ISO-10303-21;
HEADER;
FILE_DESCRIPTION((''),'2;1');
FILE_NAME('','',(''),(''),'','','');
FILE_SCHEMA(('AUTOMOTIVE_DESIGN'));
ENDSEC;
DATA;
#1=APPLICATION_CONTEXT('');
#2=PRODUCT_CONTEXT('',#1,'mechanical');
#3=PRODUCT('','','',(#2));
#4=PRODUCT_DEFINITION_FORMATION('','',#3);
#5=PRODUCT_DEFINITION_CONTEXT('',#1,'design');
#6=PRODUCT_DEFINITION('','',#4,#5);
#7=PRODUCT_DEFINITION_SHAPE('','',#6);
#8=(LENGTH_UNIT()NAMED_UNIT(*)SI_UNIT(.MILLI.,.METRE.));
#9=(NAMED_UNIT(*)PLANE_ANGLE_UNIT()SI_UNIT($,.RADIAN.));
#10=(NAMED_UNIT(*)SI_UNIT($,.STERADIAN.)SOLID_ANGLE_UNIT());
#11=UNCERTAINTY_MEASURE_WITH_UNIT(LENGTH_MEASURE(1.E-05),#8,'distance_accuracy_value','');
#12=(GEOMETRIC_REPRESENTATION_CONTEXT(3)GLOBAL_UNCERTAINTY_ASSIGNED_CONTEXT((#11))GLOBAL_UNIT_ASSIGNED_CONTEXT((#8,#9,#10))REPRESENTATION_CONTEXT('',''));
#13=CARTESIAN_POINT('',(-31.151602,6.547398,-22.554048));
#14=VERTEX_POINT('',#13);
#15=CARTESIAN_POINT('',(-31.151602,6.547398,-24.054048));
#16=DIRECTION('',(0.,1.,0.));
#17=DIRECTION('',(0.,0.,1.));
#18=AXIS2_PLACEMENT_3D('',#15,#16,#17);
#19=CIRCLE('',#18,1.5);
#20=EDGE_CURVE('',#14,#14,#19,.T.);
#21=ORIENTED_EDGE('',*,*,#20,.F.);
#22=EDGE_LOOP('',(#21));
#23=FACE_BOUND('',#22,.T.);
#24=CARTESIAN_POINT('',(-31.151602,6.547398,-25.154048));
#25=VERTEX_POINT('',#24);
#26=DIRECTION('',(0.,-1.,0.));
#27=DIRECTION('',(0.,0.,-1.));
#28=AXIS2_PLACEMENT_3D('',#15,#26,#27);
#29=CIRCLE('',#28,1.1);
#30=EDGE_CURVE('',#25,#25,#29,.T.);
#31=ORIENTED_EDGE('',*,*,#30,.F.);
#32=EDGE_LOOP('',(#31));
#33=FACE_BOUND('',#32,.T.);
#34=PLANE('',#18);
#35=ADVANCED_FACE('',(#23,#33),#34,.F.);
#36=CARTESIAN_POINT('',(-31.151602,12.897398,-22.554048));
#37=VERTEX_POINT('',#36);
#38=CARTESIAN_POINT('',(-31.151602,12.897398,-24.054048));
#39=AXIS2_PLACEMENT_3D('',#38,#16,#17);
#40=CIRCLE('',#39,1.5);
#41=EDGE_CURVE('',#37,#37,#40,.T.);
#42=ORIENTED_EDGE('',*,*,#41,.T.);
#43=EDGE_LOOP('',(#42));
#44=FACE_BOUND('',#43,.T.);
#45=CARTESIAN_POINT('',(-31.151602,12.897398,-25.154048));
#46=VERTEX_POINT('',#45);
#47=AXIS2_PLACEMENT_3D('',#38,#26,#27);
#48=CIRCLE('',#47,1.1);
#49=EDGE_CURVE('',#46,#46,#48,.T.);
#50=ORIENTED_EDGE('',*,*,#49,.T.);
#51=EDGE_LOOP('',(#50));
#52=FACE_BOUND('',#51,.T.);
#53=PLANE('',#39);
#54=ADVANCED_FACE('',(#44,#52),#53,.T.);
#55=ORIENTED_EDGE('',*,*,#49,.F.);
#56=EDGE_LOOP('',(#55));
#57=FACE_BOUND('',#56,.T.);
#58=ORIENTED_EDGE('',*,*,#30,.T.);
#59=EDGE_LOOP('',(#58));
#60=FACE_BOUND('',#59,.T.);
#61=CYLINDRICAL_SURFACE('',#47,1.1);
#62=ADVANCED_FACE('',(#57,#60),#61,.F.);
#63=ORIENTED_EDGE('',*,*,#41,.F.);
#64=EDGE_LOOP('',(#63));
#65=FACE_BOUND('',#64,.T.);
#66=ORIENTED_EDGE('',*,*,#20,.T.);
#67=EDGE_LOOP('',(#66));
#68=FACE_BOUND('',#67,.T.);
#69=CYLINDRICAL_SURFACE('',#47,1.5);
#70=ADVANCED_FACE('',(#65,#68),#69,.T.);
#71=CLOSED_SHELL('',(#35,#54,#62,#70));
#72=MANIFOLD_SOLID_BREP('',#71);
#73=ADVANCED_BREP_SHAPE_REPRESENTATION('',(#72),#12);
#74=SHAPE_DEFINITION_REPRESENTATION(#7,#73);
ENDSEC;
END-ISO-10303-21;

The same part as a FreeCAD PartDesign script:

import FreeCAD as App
import Part
import Sketcher
from FreeCAD import Vector
Q = App.Units.Quantity

doc = App.newDocument("Part")
params = doc.addObject("Spreadsheet::Sheet", "Params")
for row, (alias, value) in enumerate([
    ("sketch1_diameter", "3 mm"),
    ("pad1_length", "6.35 mm"),
    ("sketch2_diameter", "2.2 mm"),
    ("pocket1_length", "6.35 mm"),
], start=1):
    params.set(f"A{row}", alias)
    params.set(f"B{row}", "=" + value)
    params.setAlias(f"B{row}", alias)

body = doc.addObject("PartDesign::Body", "Body")

sketch1 = body.newObject("Sketcher::SketchObject", "Sketch")
sketch1.AttachmentSupport = (doc.getObject("XZ_Plane"), [""])
sketch1.MapMode = "FlatFace"
sketch1.AttachmentOffset = App.Placement(Vector(0, 0, -6.547398), App.Rotation())
sketch1.addGeometry(Part.Circle(Vector(-31.2, -24.1, 0), Vector(0, 0, 1), 1.5), False)
sketch1.addConstraint([
    Sketcher.Constraint("Diameter", 0, Q("3 mm")),
    Sketcher.Constraint("DistanceX", 0, 3, -1, 1, Q("31.151602 mm")),
    Sketcher.Constraint("DistanceY", 0, 3, -1, 1, Q("24.054048 mm")),
])
sketch1.setExpression("Constraints[0]", "Params.sketch1_diameter")
pad1 = body.newObject("PartDesign::Pad", "Pad")
pad1.Profile = sketch1
pad1.setExpression("Length", "Params.pad1_length")
pad1.Reversed = True

sketch2 = body.newObject("Sketcher::SketchObject", "Sketch001")
sketch2.AttachmentSupport = (doc.getObject("XZ_Plane"), [""])
sketch2.MapMode = "FlatFace"
sketch2.AttachmentOffset = App.Placement(Vector(0, 0, -6.547398), App.Rotation())
sketch2.addGeometry(Part.Circle(Vector(-31.2, -24.1, 0), Vector(0, 0, 1), 1.1), False)
sketch2.addConstraint([
    Sketcher.Constraint("Diameter", 0, Q("2.2 mm")),
    Sketcher.Constraint("DistanceX", 0, 3, -1, 1, Q("31.151602 mm")),
    Sketcher.Constraint("DistanceY", 0, 3, -1, 1, Q("24.054048 mm")),
])
sketch2.setExpression("Constraints[0]", "Params.sketch2_diameter")
pocket1 = body.newObject("PartDesign::Pocket", "Pocket")
pocket1.Profile = sketch2
pocket1.setExpression("Length", "Params.pocket1_length")

doc.recompute()
